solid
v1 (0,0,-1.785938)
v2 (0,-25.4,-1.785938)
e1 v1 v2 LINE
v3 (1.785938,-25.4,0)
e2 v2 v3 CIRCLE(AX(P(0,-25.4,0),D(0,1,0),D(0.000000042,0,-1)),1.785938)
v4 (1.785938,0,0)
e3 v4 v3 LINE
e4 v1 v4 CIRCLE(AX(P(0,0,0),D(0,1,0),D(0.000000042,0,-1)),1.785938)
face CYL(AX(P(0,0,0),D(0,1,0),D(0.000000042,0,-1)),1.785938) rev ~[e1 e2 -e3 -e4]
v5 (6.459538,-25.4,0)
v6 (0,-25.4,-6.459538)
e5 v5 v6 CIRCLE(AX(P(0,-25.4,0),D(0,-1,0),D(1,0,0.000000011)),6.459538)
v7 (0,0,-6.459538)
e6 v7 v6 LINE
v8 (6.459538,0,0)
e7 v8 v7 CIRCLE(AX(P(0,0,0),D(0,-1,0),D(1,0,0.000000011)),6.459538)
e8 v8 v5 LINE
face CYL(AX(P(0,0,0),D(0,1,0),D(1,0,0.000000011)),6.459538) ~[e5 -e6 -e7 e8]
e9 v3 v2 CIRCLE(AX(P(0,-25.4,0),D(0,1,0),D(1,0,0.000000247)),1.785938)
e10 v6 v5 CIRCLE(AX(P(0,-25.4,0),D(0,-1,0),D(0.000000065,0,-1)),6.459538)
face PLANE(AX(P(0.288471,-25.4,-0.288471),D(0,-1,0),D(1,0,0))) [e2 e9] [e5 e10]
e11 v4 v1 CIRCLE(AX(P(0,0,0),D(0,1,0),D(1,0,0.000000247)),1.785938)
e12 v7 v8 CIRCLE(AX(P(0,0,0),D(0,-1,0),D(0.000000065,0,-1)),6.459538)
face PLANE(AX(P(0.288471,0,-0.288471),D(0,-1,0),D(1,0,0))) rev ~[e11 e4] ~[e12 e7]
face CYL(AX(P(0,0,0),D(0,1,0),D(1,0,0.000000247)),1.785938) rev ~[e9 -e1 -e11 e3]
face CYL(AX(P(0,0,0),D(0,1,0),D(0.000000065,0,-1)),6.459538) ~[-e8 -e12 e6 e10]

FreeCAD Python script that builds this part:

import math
import FreeCAD as App
import Part
import Sketcher

V = App.Vector
Q = App.Units.Quantity

doc = App.newDocument("Part")
body = doc.addObject("PartDesign::Body", "Body")

sketch1 = body.newObject("Sketcher::SketchObject", "Sketch")
sketch1.AttachmentSupport = (doc.getObject("XZ_Plane"), [""])
sketch1.MapMode = "FlatFace"
sketch1.addGeometry(Part.ArcOfCircle(Part.Circle(V(0, 0, 0), V(0, 0, 1), 6.5), math.radians(0), math.radians(270)), False)
sketch1.addGeometry(Part.ArcOfCircle(Part.Circle(V(0, 0, 0), V(0, 0, 1), 6.5), math.radians(-90), math.radians(0)), False)
sketch1.addGeometry(Part.ArcOfCircle(Part.Circle(V(0, 0, 0), V(0, 0, 1), 1.8), math.radians(-90), math.radians(0)), False)
sketch1.addGeometry(Part.ArcOfCircle(Part.Circle(V(0, 0, 0), V(0, 0, 1), 1.8), math.radians(0), math.radians(270)), False)
sketch1.addConstraint(Sketcher.Constraint("Tangent", 0, 1, 1, 2))
sketch1.addConstraint(Sketcher.Constraint("Coincident", 1, 1, 0, 2))
sketch1.addConstraint(Sketcher.Constraint("Tangent", 2, 1, 3, 2))
sketch1.addConstraint(Sketcher.Constraint("Coincident", 3, 1, 2, 2))
sketch1.addConstraint(Sketcher.Constraint("Coincident", 0, 3, -1, 1))
sketch1.addConstraint(Sketcher.Constraint("Coincident", 2, 3, -1, 1))
sketch1.addConstraint(Sketcher.Constraint("PointOnObject", 0, 1, -1))
sketch1.addConstraint(Sketcher.Constraint("PointOnObject", 1, 1, -2))
sketch1.addConstraint(Sketcher.Constraint("PointOnObject", 2, 1, -2))
sketch1.addConstraint(Sketcher.Constraint("PointOnObject", 3, 1, -1))
sketch1.addConstraint(Sketcher.Constraint("Radius", 1, 6.459538))
sketch1.addConstraint(Sketcher.Constraint("Radius", 3, 1.785938))
pad1 = body.newObject("PartDesign::Pad", "Pad")
pad1.Profile = sketch1
pad1.Length = Q("1 in")

doc.recompute()
